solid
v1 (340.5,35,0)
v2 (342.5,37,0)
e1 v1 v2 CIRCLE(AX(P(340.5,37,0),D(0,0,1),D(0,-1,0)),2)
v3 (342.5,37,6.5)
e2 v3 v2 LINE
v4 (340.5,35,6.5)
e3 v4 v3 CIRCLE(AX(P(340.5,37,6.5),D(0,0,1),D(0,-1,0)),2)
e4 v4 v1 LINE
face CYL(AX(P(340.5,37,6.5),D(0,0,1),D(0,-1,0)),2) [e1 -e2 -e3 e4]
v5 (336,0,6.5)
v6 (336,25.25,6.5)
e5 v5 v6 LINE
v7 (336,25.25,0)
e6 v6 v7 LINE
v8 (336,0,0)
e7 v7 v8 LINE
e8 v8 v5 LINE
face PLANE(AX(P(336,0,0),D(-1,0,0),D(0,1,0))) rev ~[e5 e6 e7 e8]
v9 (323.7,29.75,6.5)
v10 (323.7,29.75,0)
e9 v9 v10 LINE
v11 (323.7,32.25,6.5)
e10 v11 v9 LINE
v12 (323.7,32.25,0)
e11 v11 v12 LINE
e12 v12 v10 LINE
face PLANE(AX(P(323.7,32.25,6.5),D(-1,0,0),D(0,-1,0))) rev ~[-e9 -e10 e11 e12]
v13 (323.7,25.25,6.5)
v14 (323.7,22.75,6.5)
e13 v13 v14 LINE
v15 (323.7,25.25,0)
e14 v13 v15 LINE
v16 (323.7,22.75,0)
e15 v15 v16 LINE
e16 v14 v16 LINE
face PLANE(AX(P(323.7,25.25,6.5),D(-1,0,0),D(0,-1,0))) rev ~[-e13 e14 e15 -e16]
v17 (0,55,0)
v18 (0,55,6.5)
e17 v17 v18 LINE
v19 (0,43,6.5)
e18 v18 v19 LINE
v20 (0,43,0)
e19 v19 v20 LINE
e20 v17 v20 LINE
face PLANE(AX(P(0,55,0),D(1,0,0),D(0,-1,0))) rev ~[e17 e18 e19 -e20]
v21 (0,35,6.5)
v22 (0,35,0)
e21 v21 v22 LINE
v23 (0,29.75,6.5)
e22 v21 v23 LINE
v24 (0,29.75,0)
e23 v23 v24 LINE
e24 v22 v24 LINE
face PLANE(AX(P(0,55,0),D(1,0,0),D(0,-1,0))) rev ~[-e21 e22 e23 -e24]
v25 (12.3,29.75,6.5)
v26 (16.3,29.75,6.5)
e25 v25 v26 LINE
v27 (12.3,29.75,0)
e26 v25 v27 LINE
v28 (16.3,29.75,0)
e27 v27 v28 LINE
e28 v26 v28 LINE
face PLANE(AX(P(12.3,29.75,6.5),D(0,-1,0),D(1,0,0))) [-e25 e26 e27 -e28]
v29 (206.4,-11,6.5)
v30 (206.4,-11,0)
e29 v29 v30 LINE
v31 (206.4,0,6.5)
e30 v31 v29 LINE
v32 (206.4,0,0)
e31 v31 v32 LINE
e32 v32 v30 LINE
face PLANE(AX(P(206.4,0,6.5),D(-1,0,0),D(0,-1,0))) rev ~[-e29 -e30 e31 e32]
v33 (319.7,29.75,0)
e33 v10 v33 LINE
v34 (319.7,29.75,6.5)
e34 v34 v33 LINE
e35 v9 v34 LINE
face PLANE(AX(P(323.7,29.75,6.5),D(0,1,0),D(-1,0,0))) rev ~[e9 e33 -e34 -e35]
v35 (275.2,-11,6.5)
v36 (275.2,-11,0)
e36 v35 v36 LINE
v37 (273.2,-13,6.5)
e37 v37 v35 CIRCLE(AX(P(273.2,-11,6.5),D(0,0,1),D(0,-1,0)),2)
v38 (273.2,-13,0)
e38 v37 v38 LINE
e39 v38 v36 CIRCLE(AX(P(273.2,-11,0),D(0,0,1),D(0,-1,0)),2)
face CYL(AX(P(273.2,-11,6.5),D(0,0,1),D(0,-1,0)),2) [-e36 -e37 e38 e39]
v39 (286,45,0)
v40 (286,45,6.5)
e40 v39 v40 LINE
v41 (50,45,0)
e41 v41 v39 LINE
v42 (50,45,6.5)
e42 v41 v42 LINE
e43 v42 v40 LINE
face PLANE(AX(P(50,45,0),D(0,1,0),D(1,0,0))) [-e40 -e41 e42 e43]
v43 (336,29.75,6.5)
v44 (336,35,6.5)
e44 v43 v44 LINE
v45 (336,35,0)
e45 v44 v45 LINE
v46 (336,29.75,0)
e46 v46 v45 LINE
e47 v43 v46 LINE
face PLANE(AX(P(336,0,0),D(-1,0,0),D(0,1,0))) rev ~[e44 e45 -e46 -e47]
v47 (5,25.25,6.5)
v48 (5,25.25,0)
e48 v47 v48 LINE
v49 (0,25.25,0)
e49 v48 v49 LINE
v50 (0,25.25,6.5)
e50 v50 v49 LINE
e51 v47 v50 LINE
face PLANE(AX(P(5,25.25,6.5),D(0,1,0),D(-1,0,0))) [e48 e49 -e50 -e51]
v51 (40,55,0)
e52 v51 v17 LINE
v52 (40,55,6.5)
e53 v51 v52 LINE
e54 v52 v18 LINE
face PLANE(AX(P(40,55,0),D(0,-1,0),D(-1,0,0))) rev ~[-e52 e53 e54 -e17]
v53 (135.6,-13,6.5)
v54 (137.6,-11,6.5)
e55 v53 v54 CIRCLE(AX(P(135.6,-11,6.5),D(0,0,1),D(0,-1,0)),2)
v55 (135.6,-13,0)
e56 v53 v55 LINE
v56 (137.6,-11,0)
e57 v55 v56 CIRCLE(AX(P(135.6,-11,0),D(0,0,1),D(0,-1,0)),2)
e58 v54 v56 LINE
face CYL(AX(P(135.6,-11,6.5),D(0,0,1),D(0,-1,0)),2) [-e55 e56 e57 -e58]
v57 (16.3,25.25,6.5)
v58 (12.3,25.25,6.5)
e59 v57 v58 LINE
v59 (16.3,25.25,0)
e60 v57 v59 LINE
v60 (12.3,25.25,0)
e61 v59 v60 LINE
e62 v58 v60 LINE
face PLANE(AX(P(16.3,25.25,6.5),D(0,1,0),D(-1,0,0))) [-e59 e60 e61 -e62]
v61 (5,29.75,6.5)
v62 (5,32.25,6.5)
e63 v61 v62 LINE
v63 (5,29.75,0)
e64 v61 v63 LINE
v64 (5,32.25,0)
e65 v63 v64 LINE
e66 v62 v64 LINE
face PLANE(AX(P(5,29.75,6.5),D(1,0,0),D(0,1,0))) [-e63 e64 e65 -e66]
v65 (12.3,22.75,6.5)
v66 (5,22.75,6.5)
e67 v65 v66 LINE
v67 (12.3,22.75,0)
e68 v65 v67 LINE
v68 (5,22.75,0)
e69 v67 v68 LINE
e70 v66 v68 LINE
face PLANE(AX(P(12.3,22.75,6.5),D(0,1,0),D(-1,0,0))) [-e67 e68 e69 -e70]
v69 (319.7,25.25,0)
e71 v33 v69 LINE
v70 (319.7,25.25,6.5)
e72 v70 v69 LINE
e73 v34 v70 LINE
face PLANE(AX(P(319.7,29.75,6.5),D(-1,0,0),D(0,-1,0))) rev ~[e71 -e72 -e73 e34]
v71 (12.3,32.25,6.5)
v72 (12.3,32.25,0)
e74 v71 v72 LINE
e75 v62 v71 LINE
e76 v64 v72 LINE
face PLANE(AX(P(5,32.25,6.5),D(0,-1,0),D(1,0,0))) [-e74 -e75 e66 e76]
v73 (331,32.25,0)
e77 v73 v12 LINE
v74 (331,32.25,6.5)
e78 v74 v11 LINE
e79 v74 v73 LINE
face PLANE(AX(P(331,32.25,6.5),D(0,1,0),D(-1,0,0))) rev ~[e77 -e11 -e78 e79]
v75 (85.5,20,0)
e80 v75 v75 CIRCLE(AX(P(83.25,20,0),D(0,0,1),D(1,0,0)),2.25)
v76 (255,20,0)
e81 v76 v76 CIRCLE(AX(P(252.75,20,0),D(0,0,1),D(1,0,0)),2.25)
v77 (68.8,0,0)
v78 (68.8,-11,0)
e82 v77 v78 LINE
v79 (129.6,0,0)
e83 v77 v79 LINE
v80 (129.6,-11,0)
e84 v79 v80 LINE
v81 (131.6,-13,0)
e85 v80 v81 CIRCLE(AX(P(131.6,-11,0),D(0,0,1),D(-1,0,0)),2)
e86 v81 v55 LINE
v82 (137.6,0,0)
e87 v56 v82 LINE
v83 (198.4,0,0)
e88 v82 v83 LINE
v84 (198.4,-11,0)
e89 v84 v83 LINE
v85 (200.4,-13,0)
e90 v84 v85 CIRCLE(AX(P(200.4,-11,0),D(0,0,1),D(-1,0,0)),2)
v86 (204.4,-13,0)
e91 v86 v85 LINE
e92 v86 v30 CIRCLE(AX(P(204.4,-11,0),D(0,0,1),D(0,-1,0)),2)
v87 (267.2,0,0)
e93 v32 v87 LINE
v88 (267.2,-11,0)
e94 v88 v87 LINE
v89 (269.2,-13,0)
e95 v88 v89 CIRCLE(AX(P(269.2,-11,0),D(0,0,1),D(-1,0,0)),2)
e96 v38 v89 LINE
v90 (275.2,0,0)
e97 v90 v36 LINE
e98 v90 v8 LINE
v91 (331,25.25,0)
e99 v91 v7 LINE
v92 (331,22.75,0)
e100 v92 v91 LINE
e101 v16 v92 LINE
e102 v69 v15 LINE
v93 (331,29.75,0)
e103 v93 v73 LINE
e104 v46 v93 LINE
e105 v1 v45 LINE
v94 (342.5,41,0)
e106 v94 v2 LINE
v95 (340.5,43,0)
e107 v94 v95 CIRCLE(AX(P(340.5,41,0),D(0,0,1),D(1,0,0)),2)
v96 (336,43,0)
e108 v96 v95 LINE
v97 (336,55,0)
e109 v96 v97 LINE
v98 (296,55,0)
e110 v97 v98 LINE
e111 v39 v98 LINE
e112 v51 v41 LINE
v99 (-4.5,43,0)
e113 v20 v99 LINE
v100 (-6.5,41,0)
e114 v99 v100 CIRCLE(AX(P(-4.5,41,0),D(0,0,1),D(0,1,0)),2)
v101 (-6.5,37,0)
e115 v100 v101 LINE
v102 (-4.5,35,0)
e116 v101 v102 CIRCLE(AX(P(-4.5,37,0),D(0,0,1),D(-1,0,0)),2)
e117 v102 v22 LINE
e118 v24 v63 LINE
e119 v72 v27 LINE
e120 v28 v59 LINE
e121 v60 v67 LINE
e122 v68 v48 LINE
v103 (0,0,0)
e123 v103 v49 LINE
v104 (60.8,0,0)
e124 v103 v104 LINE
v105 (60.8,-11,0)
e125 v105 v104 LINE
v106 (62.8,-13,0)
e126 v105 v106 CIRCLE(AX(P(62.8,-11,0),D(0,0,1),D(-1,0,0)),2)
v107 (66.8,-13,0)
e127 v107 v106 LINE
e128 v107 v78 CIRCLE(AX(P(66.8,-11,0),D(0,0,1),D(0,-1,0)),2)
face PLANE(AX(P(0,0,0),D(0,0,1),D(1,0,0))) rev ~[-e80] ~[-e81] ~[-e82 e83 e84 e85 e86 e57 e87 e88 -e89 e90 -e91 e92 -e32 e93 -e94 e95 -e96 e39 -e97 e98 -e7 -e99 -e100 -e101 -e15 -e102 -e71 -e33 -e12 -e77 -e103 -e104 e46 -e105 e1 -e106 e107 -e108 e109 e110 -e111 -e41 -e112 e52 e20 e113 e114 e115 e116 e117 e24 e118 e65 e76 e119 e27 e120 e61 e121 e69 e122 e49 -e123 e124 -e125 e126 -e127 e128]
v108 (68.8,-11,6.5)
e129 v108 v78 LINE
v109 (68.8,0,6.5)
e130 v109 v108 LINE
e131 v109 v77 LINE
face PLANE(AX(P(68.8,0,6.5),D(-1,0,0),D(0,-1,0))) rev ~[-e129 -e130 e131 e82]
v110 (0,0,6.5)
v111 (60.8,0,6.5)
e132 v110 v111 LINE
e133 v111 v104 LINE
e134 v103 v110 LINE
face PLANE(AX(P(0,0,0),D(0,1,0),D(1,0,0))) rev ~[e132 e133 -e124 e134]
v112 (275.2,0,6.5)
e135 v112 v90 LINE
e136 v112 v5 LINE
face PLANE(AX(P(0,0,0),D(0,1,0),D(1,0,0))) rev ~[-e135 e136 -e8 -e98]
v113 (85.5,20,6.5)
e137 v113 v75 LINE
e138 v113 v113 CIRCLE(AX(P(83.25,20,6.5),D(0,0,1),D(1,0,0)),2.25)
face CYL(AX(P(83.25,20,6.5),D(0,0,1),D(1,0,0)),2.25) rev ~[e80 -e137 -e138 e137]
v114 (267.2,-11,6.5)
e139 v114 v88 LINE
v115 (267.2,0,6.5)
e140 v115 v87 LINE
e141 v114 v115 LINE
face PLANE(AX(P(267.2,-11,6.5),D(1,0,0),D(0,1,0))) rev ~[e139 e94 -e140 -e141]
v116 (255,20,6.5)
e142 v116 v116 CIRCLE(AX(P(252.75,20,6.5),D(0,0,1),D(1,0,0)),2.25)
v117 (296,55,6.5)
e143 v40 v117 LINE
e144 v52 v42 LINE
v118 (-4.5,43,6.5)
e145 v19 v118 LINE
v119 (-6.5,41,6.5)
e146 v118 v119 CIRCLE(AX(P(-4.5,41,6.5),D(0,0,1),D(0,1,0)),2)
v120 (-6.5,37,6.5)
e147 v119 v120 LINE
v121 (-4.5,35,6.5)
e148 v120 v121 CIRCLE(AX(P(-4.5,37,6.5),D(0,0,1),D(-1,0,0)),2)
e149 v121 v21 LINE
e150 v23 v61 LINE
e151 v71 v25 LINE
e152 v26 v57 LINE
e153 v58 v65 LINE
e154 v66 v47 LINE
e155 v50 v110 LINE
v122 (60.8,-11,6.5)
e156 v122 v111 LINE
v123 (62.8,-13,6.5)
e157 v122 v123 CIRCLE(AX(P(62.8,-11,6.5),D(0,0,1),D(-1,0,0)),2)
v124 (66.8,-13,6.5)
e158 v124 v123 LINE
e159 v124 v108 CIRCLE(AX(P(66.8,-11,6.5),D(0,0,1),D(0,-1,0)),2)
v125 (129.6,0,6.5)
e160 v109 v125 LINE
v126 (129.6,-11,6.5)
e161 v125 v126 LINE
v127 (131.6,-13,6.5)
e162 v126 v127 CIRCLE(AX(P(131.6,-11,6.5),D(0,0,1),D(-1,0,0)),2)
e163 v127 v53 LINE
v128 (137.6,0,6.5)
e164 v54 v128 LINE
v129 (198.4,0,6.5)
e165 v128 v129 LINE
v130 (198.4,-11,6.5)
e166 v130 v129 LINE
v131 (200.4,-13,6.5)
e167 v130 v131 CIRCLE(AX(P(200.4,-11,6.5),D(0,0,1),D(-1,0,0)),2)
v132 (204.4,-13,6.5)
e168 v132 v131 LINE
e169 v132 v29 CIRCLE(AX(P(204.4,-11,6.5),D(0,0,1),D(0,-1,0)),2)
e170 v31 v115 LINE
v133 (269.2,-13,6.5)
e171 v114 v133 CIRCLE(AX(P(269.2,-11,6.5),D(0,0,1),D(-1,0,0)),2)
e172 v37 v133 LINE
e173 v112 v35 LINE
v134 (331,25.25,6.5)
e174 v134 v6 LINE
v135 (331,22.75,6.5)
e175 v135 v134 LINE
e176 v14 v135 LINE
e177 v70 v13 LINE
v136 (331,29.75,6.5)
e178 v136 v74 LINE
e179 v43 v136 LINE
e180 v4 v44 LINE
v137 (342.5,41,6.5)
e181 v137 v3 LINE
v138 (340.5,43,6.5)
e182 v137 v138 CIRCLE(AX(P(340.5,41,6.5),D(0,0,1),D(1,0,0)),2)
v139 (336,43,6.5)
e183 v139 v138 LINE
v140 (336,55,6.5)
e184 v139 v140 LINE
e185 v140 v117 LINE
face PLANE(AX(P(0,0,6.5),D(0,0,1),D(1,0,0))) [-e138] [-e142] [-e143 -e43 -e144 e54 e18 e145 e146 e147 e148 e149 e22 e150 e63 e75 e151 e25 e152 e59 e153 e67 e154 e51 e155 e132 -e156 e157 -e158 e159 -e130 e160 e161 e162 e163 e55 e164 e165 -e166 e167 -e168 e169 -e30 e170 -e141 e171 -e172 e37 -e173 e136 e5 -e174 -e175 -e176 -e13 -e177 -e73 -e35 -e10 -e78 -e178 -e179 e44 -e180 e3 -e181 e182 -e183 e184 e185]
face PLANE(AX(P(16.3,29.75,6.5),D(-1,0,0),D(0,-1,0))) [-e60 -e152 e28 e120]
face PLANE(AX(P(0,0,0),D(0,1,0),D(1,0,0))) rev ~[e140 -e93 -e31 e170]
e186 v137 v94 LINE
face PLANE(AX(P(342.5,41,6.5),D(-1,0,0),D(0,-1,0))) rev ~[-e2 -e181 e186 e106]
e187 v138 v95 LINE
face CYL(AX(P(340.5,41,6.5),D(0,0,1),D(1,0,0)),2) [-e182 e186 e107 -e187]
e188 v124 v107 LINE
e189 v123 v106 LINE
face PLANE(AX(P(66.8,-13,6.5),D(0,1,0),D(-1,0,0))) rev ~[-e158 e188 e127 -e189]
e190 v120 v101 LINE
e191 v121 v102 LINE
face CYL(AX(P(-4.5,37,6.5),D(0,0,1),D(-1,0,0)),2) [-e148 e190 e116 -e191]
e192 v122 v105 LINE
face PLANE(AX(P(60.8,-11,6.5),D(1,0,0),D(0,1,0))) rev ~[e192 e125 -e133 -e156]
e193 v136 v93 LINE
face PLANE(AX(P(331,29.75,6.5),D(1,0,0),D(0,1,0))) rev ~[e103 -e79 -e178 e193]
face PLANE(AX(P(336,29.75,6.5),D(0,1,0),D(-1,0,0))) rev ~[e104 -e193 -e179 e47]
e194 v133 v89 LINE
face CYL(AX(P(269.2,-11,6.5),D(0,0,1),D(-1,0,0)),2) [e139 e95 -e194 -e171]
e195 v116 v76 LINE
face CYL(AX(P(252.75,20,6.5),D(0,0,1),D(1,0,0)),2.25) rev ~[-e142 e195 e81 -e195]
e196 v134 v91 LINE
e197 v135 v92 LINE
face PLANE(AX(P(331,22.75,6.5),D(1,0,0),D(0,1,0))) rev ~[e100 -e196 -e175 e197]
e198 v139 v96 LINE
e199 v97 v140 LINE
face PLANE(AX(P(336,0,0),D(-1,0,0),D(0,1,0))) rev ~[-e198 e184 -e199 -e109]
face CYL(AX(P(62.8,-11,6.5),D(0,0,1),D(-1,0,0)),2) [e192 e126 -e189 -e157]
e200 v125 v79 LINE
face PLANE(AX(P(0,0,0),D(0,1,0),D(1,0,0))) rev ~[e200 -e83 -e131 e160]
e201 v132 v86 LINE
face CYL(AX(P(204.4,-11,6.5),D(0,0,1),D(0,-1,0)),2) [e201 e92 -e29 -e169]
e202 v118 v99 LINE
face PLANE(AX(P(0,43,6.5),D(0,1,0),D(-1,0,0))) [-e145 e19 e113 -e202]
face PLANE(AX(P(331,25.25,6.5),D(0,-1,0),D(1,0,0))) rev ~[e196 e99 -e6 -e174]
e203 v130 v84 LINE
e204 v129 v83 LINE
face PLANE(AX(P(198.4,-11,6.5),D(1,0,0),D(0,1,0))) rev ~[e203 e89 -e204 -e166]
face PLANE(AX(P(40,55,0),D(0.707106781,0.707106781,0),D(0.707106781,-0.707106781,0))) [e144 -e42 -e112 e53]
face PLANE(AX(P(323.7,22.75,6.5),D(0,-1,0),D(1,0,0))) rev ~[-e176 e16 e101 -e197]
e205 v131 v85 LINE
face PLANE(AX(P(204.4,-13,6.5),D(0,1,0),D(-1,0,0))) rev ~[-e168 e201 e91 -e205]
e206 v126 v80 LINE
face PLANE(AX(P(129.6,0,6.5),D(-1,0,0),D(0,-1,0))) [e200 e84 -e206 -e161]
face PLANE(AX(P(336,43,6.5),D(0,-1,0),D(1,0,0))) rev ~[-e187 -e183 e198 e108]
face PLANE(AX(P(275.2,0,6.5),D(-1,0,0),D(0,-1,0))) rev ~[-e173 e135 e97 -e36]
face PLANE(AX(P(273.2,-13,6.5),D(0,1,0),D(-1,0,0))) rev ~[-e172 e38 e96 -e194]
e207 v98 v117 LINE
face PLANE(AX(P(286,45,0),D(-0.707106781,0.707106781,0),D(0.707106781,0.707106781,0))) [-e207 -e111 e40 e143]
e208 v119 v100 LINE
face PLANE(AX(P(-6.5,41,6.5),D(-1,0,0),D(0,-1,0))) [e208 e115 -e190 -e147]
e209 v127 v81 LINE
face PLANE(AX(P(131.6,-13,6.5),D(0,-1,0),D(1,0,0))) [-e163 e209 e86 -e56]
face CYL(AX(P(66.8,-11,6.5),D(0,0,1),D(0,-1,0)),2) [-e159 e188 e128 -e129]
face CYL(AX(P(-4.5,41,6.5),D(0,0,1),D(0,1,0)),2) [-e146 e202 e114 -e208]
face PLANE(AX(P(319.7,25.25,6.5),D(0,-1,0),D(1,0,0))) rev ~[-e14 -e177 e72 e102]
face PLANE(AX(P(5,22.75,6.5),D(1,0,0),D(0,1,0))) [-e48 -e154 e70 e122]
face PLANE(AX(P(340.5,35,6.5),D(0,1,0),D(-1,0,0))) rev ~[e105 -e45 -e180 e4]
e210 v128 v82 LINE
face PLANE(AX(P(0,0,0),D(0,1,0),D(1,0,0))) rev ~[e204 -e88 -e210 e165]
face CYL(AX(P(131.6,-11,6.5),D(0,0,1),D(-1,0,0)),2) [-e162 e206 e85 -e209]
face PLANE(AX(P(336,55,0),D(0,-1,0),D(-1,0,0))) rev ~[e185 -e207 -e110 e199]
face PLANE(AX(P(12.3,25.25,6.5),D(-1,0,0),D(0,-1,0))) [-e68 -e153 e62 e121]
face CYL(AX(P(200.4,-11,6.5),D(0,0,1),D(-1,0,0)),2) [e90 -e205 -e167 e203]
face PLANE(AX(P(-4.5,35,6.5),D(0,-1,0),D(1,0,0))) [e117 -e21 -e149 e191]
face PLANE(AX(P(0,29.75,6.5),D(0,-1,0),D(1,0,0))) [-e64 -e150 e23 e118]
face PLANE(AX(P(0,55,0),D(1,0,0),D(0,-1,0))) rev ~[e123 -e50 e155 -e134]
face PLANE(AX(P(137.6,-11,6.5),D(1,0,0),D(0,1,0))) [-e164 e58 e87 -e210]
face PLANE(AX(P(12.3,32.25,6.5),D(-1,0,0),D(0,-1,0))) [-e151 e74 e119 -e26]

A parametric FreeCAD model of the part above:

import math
import FreeCAD as App
import Part
import Sketcher
Q = App.Units.Quantity


def add_polygon(sketch, points):
    """Adds a closed chain of lines whose ends are joined by coincident constraints."""
    first, n = sketch.GeometryCount, len(points)
    for a, b in zip(points, points[1:] + points[:1]):
        sketch.addGeometry(Part.LineSegment(App.Vector(*a, 0), App.Vector(*b, 0)), False)
    for i in range(n):
        sketch.addConstraint(Sketcher.Constraint("Coincident", first + i, 2, first + (i + 1) % n, 1))

doc = App.newDocument("Part")
body = doc.addObject("PartDesign::Body", "Body")

# Sketch on XY plane
sketch1 = body.newObject("Sketcher::SketchObject", "Sketch")
sketch1.AttachmentSupport = (doc.getObject("XY_Plane"), [""])
sketch1.MapMode = "FlatFace"
add_polygon(sketch1, [(0, 55), (0, 0), (336, 0), (336, 55), (296, 55), (286, 45), (50, 45), (40, 55)])  # lines 0-7
sketch1.addConstraint([
    Sketcher.Constraint("Vertical", 0),
    Sketcher.Constraint("Horizontal", 1),
    Sketcher.Constraint("Vertical", 2),
    Sketcher.Constraint("Horizontal", 3),
    Sketcher.Constraint("Horizontal", 5),
    Sketcher.Constraint("Horizontal", 7),
    Sketcher.Constraint("Coincident", 0, 2, -1, 1),
    Sketcher.Constraint("Perpendicular", 4, 6),
    Sketcher.Constraint("Horizontal", 3, 2, 6, 2),
    Sketcher.Constraint("Equal", 3, 7),
    Sketcher.Constraint("Equal", 4, 6),
    Sketcher.Constraint("DistanceX", 1, 1, 1, 2, Q("336 mm")),
    Sketcher.Constraint("DistanceX", 3, 2, 3, 1, Q("40 mm")),
    Sketcher.Constraint("DistanceY", 0, 2, 0, 1, Q("55 mm")),
    Sketcher.Constraint("DistanceY", -1, 1, 4, 2, Q("45 mm")),
])
pad1 = body.newObject("PartDesign::Pad", "Pad")
pad1.Profile = sketch1
pad1.Length = 6.5

# Sketch on XY plane
sketch2 = body.newObject("Sketcher::SketchObject", "Sketch001")
sketch2.AttachmentSupport = (doc.getObject("XY_Plane"), [""])
sketch2.MapMode = "FlatFace"
sketch2.AttachmentOffset = App.Placement(App.Vector(0, 0, 6.5), App.Rotation())
add_polygon(sketch2, [(5, 29.8), (0, 29.8), (0, 25.2), (5, 25.2), (5, 22.8), (12.3, 22.8), (12.3, 25.2), (16.3, 25.2), (16.3, 29.8), (12.3, 29.8), (12.3, 32.2), (5, 32.2)])  # lines 0-11
add_polygon(sketch2, [(331, 25.2), (336, 25.2), (336, 29.8), (331, 29.8), (331, 32.2), (323.7, 32.2), (323.7, 29.8), (319.7, 29.8), (319.7, 25.2), (323.7, 25.2), (323.7, 22.8), (331, 22.8)])  # lines 12-23
sketch2.addConstraint([
    Sketcher.Constraint("Horizontal", 0),
    Sketcher.Constraint("Vertical", 1),
    Sketcher.Constraint("Horizontal", 2),
    Sketcher.Constraint("Vertical", 3),
    Sketcher.Constraint("Horizontal", 4),
    Sketcher.Constraint("Vertical", 5),
    Sketcher.Constraint("Horizontal", 6),
    Sketcher.Constraint("Vertical", 7),
    Sketcher.Constraint("Horizontal", 8),
    Sketcher.Constraint("Vertical", 9),
    Sketcher.Constraint("Horizontal", 10),
    Sketcher.Constraint("Vertical", 11),
    Sketcher.Constraint("Horizontal", 12),
    Sketcher.Constraint("Vertical", 13),
    Sketcher.Constraint("Horizontal", 14),
    Sketcher.Constraint("Vertical", 15),
    Sketcher.Constraint("Horizontal", 16),
    Sketcher.Constraint("Vertical", 17),
    Sketcher.Constraint("Horizontal", 18),
    Sketcher.Constraint("Vertical", 19),
    Sketcher.Constraint("Horizontal", 20),
    Sketcher.Constraint("Vertical", 21),
    Sketcher.Constraint("Horizontal", 22),
    Sketcher.Constraint("Vertical", 23),
    Sketcher.Constraint("PointOnObject", 0, 2, -2),
    Sketcher.Constraint("Horizontal", 2, 2, 5, 2),
    Sketcher.Constraint("Horizontal", 0, 2, 7, 2),
    Sketcher.Constraint("Horizontal", 6, 2, 12, 2),
    Sketcher.Constraint("Horizontal", 11, 2, 13, 2),
    Sketcher.Constraint("Horizontal", 10, 2, 15, 2),
    Sketcher.Constraint("Horizontal", 14, 2, 17, 2),
    Sketcher.Constraint("Horizontal", 12, 2, 19, 2),
    Sketcher.Constraint("Horizontal", 4, 2, 21, 2),
    Sketcher.Constraint("Vertical", 5, 2, 8, 2),
    Sketcher.Constraint("Vertical", 3, 2, 10, 2),
    Sketcher.Constraint("Vertical", 17, 2, 20, 2),
    Sketcher.Constraint("Vertical", 15, 2, 22, 2),
    Sketcher.Constraint("Equal", 2, 12),
    Sketcher.Constraint("Equal", 10, 16),
    Sketcher.Constraint("Equal", 8, 18),
    Sketcher.Constraint("Equal", 5, 9),
    Sketcher.Constraint("DistanceX", 0, 2, 0, 1, Q("5 mm")),
    Sketcher.Constraint("DistanceX", 6, 1, 6, 2, Q("4 mm")),
    Sketcher.Constraint("DistanceX", 4, 1, 4, 2, Q("7.3 mm")),
    Sketcher.Constraint("DistanceY", 1, 2, 1, 1, Q("4.5 mm")),
    Sketcher.Constraint("DistanceY", 3, 2, 3, 1, Q("2.5 mm")),
    Sketcher.Constraint("DistanceX", -1, 1, 12, 2, Q("336 mm")),
    Sketcher.Constraint("DistanceY", -1, 1, 0, 2, Q("29.75 mm")),
])
pocket1 = body.newObject("PartDesign::Pocket", "Pocket")
pocket1.Profile = sketch2
pocket1.Type = "ThroughAll"

# Sketch on XY plane
sketch3 = body.newObject("Sketcher::SketchObject", "Sketch002")
sketch3.AttachmentSupport = (doc.getObject("XY_Plane"), [""])
sketch3.MapMode = "FlatFace"
sketch3.AttachmentOffset = App.Placement(App.Vector(0, 0, 6.5), App.Rotation())
sketch3.addGeometry([
    Part.LineSegment(App.Vector(336, 20, 0), App.Vector(336, 12, 0)),  # 0
    Part.LineSegment(App.Vector(336, 12, 0), App.Vector(340.5, 12, 0)),  # 1
    Part.ArcOfCircle(Part.Circle(App.Vector(340.5, 14, 0), App.Vector(0, 0, 1), 2), math.radians(-90), math.radians(0)),  # 2
    Part.LineSegment(App.Vector(342.5, 14, 0), App.Vector(342.5, 18, 0)),  # 3
    Part.ArcOfCircle(Part.Circle(App.Vector(340.5, 18, 0), App.Vector(0, 0, 1), 2), math.radians(0), math.radians(90)),  # 4
    Part.LineSegment(App.Vector(340.5, 20, 0), App.Vector(336, 20, 0)),  # 5
    Part.LineSegment(App.Vector(275.2, 0, 0), App.Vector(267.2, 0, 0)),  # 6
    Part.LineSegment(App.Vector(267.2, 0, 0), App.Vector(267.2, -11, 0)),  # 7
    Part.ArcOfCircle(Part.Circle(App.Vector(269.2, -11, 0), App.Vector(0, 0, 1), 2), math.radians(180), math.radians(270)),  # 8
    Part.LineSegment(App.Vector(269.2, -13, 0), App.Vector(273.2, -13, 0)),  # 9
    Part.ArcOfCircle(Part.Circle(App.Vector(273.2, -11, 0), App.Vector(0, 0, 1), 2), math.radians(-90), math.radians(0)),  # 10
    Part.LineSegment(App.Vector(275.2, -11, 0), App.Vector(275.2, 0, 0)),  # 11
    Part.LineSegment(App.Vector(206.4, 0, 0), App.Vector(198.4, 0, 0)),  # 12
    Part.LineSegment(App.Vector(198.4, 0, 0), App.Vector(198.4, -11, 0)),  # 13
    Part.ArcOfCircle(Part.Circle(App.Vector(200.4, -11, 0), App.Vector(0, 0, 1), 2), math.radians(180), math.radians(270)),  # 14
    Part.LineSegment(App.Vector(200.4, -13, 0), App.Vector(204.4, -13, 0)),  # 15
    Part.ArcOfCircle(Part.Circle(App.Vector(204.4, -11, 0), App.Vector(0, 0, 1), 2), math.radians(-90), math.radians(0)),  # 16
    Part.LineSegment(App.Vector(206.4, -11, 0), App.Vector(206.4, 0, 0)),  # 17
    Part.LineSegment(App.Vector(137.6, 0, 0), App.Vector(129.6, 0, 0)),  # 18
    Part.LineSegment(App.Vector(129.6, 0, 0), App.Vector(129.6, -11, 0)),  # 19
    Part.ArcOfCircle(Part.Circle(App.Vector(131.6, -11, 0), App.Vector(0, 0, 1), 2), math.radians(180), math.radians(270)),  # 20
    Part.LineSegment(App.Vector(131.6, -13, 0), App.Vector(135.6, -13, 0)),  # 21
    Part.ArcOfCircle(Part.Circle(App.Vector(135.6, -11, 0), App.Vector(0, 0, 1), 2), math.radians(-90), math.radians(0)),  # 22
    Part.LineSegment(App.Vector(137.6, -11, 0), App.Vector(137.6, 0, 0)),  # 23
    Part.LineSegment(App.Vector(68.8, 0, 0), App.Vector(60.8, 0, 0)),  # 24
    Part.LineSegment(App.Vector(60.8, 0, 0), App.Vector(60.8, -11, 0)),  # 25
    Part.ArcOfCircle(Part.Circle(App.Vector(62.8, -11, 0), App.Vector(0, 0, 1), 2), math.radians(180), math.radians(270)),  # 26
    Part.LineSegment(App.Vector(62.8, -13, 0), App.Vector(66.8, -13, 0)),  # 27
    Part.ArcOfCircle(Part.Circle(App.Vector(66.8, -11, 0), App.Vector(0, 0, 1), 2), math.radians(-90), math.radians(0)),  # 28
    Part.LineSegment(App.Vector(68.8, -11, 0), App.Vector(68.8, 0, 0)),  # 29
    Part.LineSegment(App.Vector(0, 12, 0), App.Vector(0, 20, 0)),  # 30
    Part.LineSegment(App.Vector(0, 20, 0), App.Vector(-4.5, 20, 0)),  # 31
    Part.ArcOfCircle(Part.Circle(App.Vector(-4.5, 18, 0), App.Vector(0, 0, 1), 2), math.radians(90), math.radians(180)),  # 32
    Part.LineSegment(App.Vector(-6.5, 18, 0), App.Vector(-6.5, 14, 0)),  # 33
    Part.ArcOfCircle(Part.Circle(App.Vector(-4.5, 14, 0), App.Vector(0, 0, 1), 2), math.radians(180), math.radians(270)),  # 34
    Part.LineSegment(App.Vector(-4.5, 12, 0), App.Vector(0, 12, 0)),  # 35
    Part.LineSegment(App.Vector(336, 43, 0), App.Vector(336, 35, 0)),  # 36
    Part.LineSegment(App.Vector(336, 35, 0), App.Vector(340.5, 35, 0)),  # 37
    Part.ArcOfCircle(Part.Circle(App.Vector(340.5, 37, 0), App.Vector(0, 0, 1), 2), math.radians(-90), math.radians(0)),  # 38
    Part.LineSegment(App.Vector(342.5, 37, 0), App.Vector(342.5, 41, 0)),  # 39
    Part.ArcOfCircle(Part.Circle(App.Vector(340.5, 41, 0), App.Vector(0, 0, 1), 2), math.radians(0), math.radians(90)),  # 40
    Part.LineSegment(App.Vector(340.5, 43, 0), App.Vector(336, 43, 0)),  # 41
    Part.LineSegment(App.Vector(0, 35, 0), App.Vector(0, 43, 0)),  # 42
    Part.LineSegment(App.Vector(0, 43, 0), App.Vector(-4.5, 43, 0)),  # 43
    Part.ArcOfCircle(Part.Circle(App.Vector(-4.5, 41, 0), App.Vector(0, 0, 1), 2), math.radians(90), math.radians(180)),  # 44
    Part.LineSegment(App.Vector(-6.5, 41, 0), App.Vector(-6.5, 37, 0)),  # 45
    Part.ArcOfCircle(Part.Circle(App.Vector(-4.5, 37, 0), App.Vector(0, 0, 1), 2), math.radians(180), math.radians(270)),  # 46
    Part.LineSegment(App.Vector(-4.5, 35, 0), App.Vector(0, 35, 0)),  # 47
], False)
sketch3.addConstraint([
    Sketcher.Constraint("Coincident", 0, 2, 1, 1),
    Sketcher.Constraint("Tangent", 1, 2, 2, 1),
    Sketcher.Constraint("Tangent", 2, 2, 3, 1),
    Sketcher.Constraint("Tangent", 3, 2, 4, 1),
    Sketcher.Constraint("Tangent", 4, 2, 5, 1),
    Sketcher.Constraint("Coincident", 5, 2, 0, 1),
    Sketcher.Constraint("Coincident", 6, 2, 7, 1),
    Sketcher.Constraint("Tangent", 7, 2, 8, 1),
    Sketcher.Constraint("Tangent", 8, 2, 9, 1),
    Sketcher.Constraint("Tangent", 9, 2, 10, 1),
    Sketcher.Constraint("Tangent", 10, 2, 11, 1),
    Sketcher.Constraint("Coincident", 11, 2, 6, 1),
    Sketcher.Constraint("Coincident", 12, 2, 13, 1),
    Sketcher.Constraint("Tangent", 13, 2, 14, 1),
    Sketcher.Constraint("Tangent", 14, 2, 15, 1),
    Sketcher.Constraint("Tangent", 15, 2, 16, 1),
    Sketcher.Constraint("Tangent", 16, 2, 17, 1),
    Sketcher.Constraint("Coincident", 17, 2, 12, 1),
    Sketcher.Constraint("Coincident", 18, 2, 19, 1),
    Sketcher.Constraint("Tangent", 19, 2, 20, 1),
    Sketcher.Constraint("Tangent", 20, 2, 21, 1),
    Sketcher.Constraint("Tangent", 21, 2, 22, 1),
    Sketcher.Constraint("Tangent", 22, 2, 23, 1),
    Sketcher.Constraint("Coincident", 23, 2, 18, 1),
    Sketcher.Constraint("Coincident", 24, 2, 25, 1),
    Sketcher.Constraint("Tangent", 25, 2, 26, 1),
    Sketcher.Constraint("Tangent", 26, 2, 27, 1),
    Sketcher.Constraint("Tangent", 27, 2, 28, 1),
    Sketcher.Constraint("Tangent", 28, 2, 29, 1),
    Sketcher.Constraint("Coincident", 29, 2, 24, 1),
    Sketcher.Constraint("Coincident", 30, 2, 31, 1),
    Sketcher.Constraint("Tangent", 31, 2, 32, 1),
    Sketcher.Constraint("Tangent", 32, 2, 33, 1),
    Sketcher.Constraint("Tangent", 33, 2, 34, 1),
    Sketcher.Constraint("Tangent", 34, 2, 35, 1),
    Sketcher.Constraint("Coincident", 35, 2, 30, 1),
    Sketcher.Constraint("Coincident", 36, 2, 37, 1),
    Sketcher.Constraint("Tangent", 37, 2, 38, 1),
    Sketcher.Constraint("Tangent", 38, 2, 39, 1),
    Sketcher.Constraint("Tangent", 39, 2, 40, 1),
    Sketcher.Constraint("Tangent", 40, 2, 41, 1),
    Sketcher.Constraint("Coincident", 41, 2, 36, 1),
    Sketcher.Constraint("Coincident", 42, 2, 43, 1),
    Sketcher.Constraint("Tangent", 43, 2, 44, 1),
    Sketcher.Constraint("Tangent", 44, 2, 45, 1),
    Sketcher.Constraint("Tangent", 45, 2, 46, 1),
    Sketcher.Constraint("Tangent", 46, 2, 47, 1),
    Sketcher.Constraint("Coincident", 47, 2, 42, 1),
    Sketcher.Constraint("Vertical", 0),
    Sketcher.Constraint("Horizontal", 1),
    Sketcher.Constraint("Vertical", 3),
    Sketcher.Constraint("Horizontal", 5),
    Sketcher.Constraint("Horizontal", 6),
    Sketcher.Constraint("Vertical", 7),
    Sketcher.Constraint("Horizontal", 9),
    Sketcher.Constraint("Vertical", 11),
    Sketcher.Constraint("Horizontal", 12),
    Sketcher.Constraint("Vertical", 13),
    Sketcher.Constraint("Horizontal", 15),
    Sketcher.Constraint("Vertical", 17),
    Sketcher.Constraint("Horizontal", 18),
    Sketcher.Constraint("Vertical", 19),
    Sketcher.Constraint("Horizontal", 21),
    Sketcher.Constraint("Vertical", 23),
    Sketcher.Constraint("Horizontal", 24),
    Sketcher.Constraint("Vertical", 25),
    Sketcher.Constraint("Horizontal", 27),
    Sketcher.Constraint("Vertical", 29),
    Sketcher.Constraint("Vertical", 30),
    Sketcher.Constraint("Horizontal", 31),
    Sketcher.Constraint("Vertical", 33),
    Sketcher.Constraint("Horizontal", 35),
    Sketcher.Constraint("Vertical", 36),
    Sketcher.Constraint("Horizontal", 37),
    Sketcher.Constraint("Vertical", 39),
    Sketcher.Constraint("Horizontal", 41),
    Sketcher.Constraint("Vertical", 42),
    Sketcher.Constraint("Horizontal", 43),
    Sketcher.Constraint("Vertical", 45),
    Sketcher.Constraint("Horizontal", 47),
    Sketcher.Constraint("Equal", 2, 4),
    Sketcher.Constraint("Equal", 4, 8),
    Sketcher.Constraint("Equal", 8, 10),
    Sketcher.Constraint("Equal", 10, 14),
    Sketcher.Constraint("Equal", 14, 16),
    Sketcher.Constraint("Equal", 16, 20),
    Sketcher.Constraint("Equal", 20, 22),
    Sketcher.Constraint("Equal", 22, 26),
    Sketcher.Constraint("Equal", 26, 28),
    Sketcher.Constraint("Equal", 28, 32),
    Sketcher.Constraint("Equal", 32, 34),
    Sketcher.Constraint("Equal", 34, 38),
    Sketcher.Constraint("Equal", 38, 40),
    Sketcher.Constraint("Equal", 40, 44),
    Sketcher.Constraint("Equal", 44, 46),
    Sketcher.Constraint("PointOnObject", 6, 2, -1),
    Sketcher.Constraint("PointOnObject", 12, 2, -1),
    Sketcher.Constraint("PointOnObject", 18, 2, -1),
    Sketcher.Constraint("PointOnObject", 24, 2, -1),
    Sketcher.Constraint("PointOnObject", 30, 2, -2),
    Sketcher.Constraint("PointOnObject", 42, 2, -2),
    Sketcher.Constraint("Horizontal", 10, 3, 14, 3),
    Sketcher.Constraint("Horizontal", 16, 3, 20, 3),
    Sketcher.Constraint("Horizontal", 22, 3, 26, 3),
    Sketcher.Constraint("Horizontal", 4, 3, 32, 3),
    Sketcher.Constraint("Horizontal", 2, 3, 34, 3),
    Sketcher.Constraint("Horizontal", 40, 3, 44, 3),
    Sketcher.Constraint("Horizontal", 38, 3, 46, 3),
    Sketcher.Constraint("Vertical", 4, 3, 38, 3),
    Sketcher.Constraint("Vertical", 34, 3, 44, 3),
    Sketcher.Constraint("Vertical", 5, 2, 36, 2),
    Sketcher.Constraint("Equal", 6, 12),
    Sketcher.Constraint("Equal", 12, 18),
    Sketcher.Constraint("Equal", 18, 24),
    Sketcher.Constraint("Equal", 5, 31),
    Sketcher.Constraint("Equal", 24, 0),
    Sketcher.Constraint("Equal", 30, 36),
    Sketcher.Constraint("Radius", 2, Q("2 mm")),
    Sketcher.Constraint("DistanceX", 6, 2, 6, 1, Q("8 mm")),
    Sketcher.Constraint("DistanceY", 8, 2, -1, 1, Q("13 mm")),
    Sketcher.Constraint("DistanceX", 32, 2, -1, 1, Q("6.5 mm")),
    Sketcher.Constraint("DistanceY", -1, 1, 2, 3, Q("14 mm")),
    Sketcher.Constraint("DistanceY", -1, 1, 38, 3, Q("37 mm")),
    Sketcher.Constraint("DistanceX", -1, 1, 0, 2, Q("336 mm")),
    Sketcher.Constraint("DistanceX", -1, 1, 8, 3, Q("269.2 mm")),
    Sketcher.Constraint("DistanceX", -1, 1, 14, 3, Q("200.4 mm")),
    Sketcher.Constraint("DistanceX", -1, 1, 20, 3, Q("131.6 mm")),
    Sketcher.Constraint("DistanceX", -1, 1, 26, 3, Q("62.8 mm")),
])
pad2 = body.newObject("PartDesign::Pad", "Pad001")
pad2.Profile = sketch3
pad2.Length = 6.5
pad2.Reversed = True

# Sketch on XY plane
sketch4 = body.newObject("Sketcher::SketchObject", "Sketch003")
sketch4.AttachmentSupport = (doc.getObject("XY_Plane"), [""])
sketch4.MapMode = "FlatFace"
sketch4.AttachmentOffset = App.Placement(App.Vector(0, 0, 6.5), App.Rotation())
sketch4.addGeometry([
    Part.LineSegment(App.Vector(0, 12, 0), App.Vector(0, 20, 0)),  # 0
    Part.LineSegment(App.Vector(0, 20, 0), App.Vector(-4.5, 20, 0)),  # 1
    Part.ArcOfCircle(Part.Circle(App.Vector(-4.5, 18, 0), App.Vector(0, 0, 1), 2), math.radians(90), math.radians(180)),  # 2
    Part.LineSegment(App.Vector(-6.5, 18, 0), App.Vector(-6.5, 14, 0)),  # 3
    Part.ArcOfCircle(Part.Circle(App.Vector(-4.5, 14, 0), App.Vector(0, 0, 1), 2), math.radians(180), math.radians(270)),  # 4
    Part.LineSegment(App.Vector(-4.5, 12, 0), App.Vector(0, 12, 0)),  # 5
    Part.LineSegment(App.Vector(336, 20, 0), App.Vector(336, 12, 0)),  # 6
    Part.LineSegment(App.Vector(336, 12, 0), App.Vector(340.5, 12, 0)),  # 7
    Part.ArcOfCircle(Part.Circle(App.Vector(340.5, 14, 0), App.Vector(0, 0, 1), 2), math.radians(-90), math.radians(0)),  # 8
    Part.LineSegment(App.Vector(342.5, 14, 0), App.Vector(342.5, 18, 0)),  # 9
    Part.ArcOfCircle(Part.Circle(App.Vector(340.5, 18, 0), App.Vector(0, 0, 1), 2), math.radians(0), math.radians(90)),  # 10
    Part.LineSegment(App.Vector(340.5, 20, 0), App.Vector(336, 20, 0)),  # 11
], False)
sketch4.addConstraint([
    Sketcher.Constraint("Coincident", 0, 2, 1, 1),
    Sketcher.Constraint("Tangent", 1, 2, 2, 1),
    Sketcher.Constraint("Tangent", 2, 2, 3, 1),
    Sketcher.Constraint("Tangent", 3, 2, 4, 1),
    Sketcher.Constraint("Tangent", 4, 2, 5, 1),
    Sketcher.Constraint("Coincident", 5, 2, 0, 1),
    Sketcher.Constraint("Coincident", 6, 2, 7, 1),
    Sketcher.Constraint("Tangent", 7, 2, 8, 1),
    Sketcher.Constraint("Tangent", 8, 2, 9, 1),
    Sketcher.Constraint("Tangent", 9, 2, 10, 1),
    Sketcher.Constraint("Tangent", 10, 2, 11, 1),
    Sketcher.Constraint("Coincident", 11, 2, 6, 1),
    Sketcher.Constraint("Vertical", 0),
    Sketcher.Constraint("Horizontal", 1),
    Sketcher.Constraint("Vertical", 3),
    Sketcher.Constraint("Horizontal", 5),
    Sketcher.Constraint("Vertical", 6),
    Sketcher.Constraint("Horizontal", 7),
    Sketcher.Constraint("Vertical", 9),
    Sketcher.Constraint("Horizontal", 11),
    Sketcher.Constraint("Equal", 2, 4),
    Sketcher.Constraint("Equal", 4, 8),
    Sketcher.Constraint("Equal", 8, 10),
    Sketcher.Constraint("PointOnObject", 0, 2, -2),
    Sketcher.Constraint("Horizontal", 4, 3, 8, 3),
    Sketcher.Constraint("Horizontal", 2, 3, 10, 3),
    Sketcher.Constraint("Equal", 5, 7),
    Sketcher.Constraint("Radius", 2, Q("2 mm")),
    Sketcher.Constraint("DistanceY", 0, 1, 0, 2, Q("8 mm")),
    Sketcher.Constraint("DistanceX", 1, 2, 1, 1, Q("4.5 mm")),
    Sketcher.Constraint("DistanceY", -1, 1, 2, 3, Q("18 mm")),
    Sketcher.Constraint("DistanceX", -1, 1, 6, 2, Q("336 mm")),
])
pocket2 = body.newObject("PartDesign::Pocket", "Pocket001")
pocket2.Profile = sketch4
pocket2.Type = "ThroughAll"

# Sketch on XY plane
sketch5 = body.newObject("Sketcher::SketchObject", "Sketch004")
sketch5.AttachmentSupport = (doc.getObject("XY_Plane"), [""])
sketch5.MapMode = "FlatFace"
sketch5.AttachmentOffset = App.Placement(App.Vector(0, 0, 6.5), App.Rotation())
sketch5.addGeometry([
    Part.Circle(App.Vector(83.2, 20, 0), App.Vector(0, 0, 1), 2.2),
    Part.Circle(App.Vector(252.8, 20, 0), App.Vector(0, 0, 1), 2.2),
], False)
sketch5.addConstraint([
    Sketcher.Constraint("Equal", 0, 1),
    Sketcher.Constraint("Horizontal", 0, 3, 1, 3),
    Sketcher.Constraint("Diameter", 0, Q("4.5 mm")),
    Sketcher.Constraint("DistanceY", -1, 1, 0, 3, Q("20 mm")),
    Sketcher.Constraint("DistanceX", -1, 1, 0, 3, Q("83.25 mm")),
    Sketcher.Constraint("DistanceX", 0, 3, 1, 3, Q("169.5 mm")),
])
pocket3 = body.newObject("PartDesign::Pocket", "Pocket002")
pocket3.Profile = sketch5
pocket3.Type = "ThroughAll"

doc.recompute()
